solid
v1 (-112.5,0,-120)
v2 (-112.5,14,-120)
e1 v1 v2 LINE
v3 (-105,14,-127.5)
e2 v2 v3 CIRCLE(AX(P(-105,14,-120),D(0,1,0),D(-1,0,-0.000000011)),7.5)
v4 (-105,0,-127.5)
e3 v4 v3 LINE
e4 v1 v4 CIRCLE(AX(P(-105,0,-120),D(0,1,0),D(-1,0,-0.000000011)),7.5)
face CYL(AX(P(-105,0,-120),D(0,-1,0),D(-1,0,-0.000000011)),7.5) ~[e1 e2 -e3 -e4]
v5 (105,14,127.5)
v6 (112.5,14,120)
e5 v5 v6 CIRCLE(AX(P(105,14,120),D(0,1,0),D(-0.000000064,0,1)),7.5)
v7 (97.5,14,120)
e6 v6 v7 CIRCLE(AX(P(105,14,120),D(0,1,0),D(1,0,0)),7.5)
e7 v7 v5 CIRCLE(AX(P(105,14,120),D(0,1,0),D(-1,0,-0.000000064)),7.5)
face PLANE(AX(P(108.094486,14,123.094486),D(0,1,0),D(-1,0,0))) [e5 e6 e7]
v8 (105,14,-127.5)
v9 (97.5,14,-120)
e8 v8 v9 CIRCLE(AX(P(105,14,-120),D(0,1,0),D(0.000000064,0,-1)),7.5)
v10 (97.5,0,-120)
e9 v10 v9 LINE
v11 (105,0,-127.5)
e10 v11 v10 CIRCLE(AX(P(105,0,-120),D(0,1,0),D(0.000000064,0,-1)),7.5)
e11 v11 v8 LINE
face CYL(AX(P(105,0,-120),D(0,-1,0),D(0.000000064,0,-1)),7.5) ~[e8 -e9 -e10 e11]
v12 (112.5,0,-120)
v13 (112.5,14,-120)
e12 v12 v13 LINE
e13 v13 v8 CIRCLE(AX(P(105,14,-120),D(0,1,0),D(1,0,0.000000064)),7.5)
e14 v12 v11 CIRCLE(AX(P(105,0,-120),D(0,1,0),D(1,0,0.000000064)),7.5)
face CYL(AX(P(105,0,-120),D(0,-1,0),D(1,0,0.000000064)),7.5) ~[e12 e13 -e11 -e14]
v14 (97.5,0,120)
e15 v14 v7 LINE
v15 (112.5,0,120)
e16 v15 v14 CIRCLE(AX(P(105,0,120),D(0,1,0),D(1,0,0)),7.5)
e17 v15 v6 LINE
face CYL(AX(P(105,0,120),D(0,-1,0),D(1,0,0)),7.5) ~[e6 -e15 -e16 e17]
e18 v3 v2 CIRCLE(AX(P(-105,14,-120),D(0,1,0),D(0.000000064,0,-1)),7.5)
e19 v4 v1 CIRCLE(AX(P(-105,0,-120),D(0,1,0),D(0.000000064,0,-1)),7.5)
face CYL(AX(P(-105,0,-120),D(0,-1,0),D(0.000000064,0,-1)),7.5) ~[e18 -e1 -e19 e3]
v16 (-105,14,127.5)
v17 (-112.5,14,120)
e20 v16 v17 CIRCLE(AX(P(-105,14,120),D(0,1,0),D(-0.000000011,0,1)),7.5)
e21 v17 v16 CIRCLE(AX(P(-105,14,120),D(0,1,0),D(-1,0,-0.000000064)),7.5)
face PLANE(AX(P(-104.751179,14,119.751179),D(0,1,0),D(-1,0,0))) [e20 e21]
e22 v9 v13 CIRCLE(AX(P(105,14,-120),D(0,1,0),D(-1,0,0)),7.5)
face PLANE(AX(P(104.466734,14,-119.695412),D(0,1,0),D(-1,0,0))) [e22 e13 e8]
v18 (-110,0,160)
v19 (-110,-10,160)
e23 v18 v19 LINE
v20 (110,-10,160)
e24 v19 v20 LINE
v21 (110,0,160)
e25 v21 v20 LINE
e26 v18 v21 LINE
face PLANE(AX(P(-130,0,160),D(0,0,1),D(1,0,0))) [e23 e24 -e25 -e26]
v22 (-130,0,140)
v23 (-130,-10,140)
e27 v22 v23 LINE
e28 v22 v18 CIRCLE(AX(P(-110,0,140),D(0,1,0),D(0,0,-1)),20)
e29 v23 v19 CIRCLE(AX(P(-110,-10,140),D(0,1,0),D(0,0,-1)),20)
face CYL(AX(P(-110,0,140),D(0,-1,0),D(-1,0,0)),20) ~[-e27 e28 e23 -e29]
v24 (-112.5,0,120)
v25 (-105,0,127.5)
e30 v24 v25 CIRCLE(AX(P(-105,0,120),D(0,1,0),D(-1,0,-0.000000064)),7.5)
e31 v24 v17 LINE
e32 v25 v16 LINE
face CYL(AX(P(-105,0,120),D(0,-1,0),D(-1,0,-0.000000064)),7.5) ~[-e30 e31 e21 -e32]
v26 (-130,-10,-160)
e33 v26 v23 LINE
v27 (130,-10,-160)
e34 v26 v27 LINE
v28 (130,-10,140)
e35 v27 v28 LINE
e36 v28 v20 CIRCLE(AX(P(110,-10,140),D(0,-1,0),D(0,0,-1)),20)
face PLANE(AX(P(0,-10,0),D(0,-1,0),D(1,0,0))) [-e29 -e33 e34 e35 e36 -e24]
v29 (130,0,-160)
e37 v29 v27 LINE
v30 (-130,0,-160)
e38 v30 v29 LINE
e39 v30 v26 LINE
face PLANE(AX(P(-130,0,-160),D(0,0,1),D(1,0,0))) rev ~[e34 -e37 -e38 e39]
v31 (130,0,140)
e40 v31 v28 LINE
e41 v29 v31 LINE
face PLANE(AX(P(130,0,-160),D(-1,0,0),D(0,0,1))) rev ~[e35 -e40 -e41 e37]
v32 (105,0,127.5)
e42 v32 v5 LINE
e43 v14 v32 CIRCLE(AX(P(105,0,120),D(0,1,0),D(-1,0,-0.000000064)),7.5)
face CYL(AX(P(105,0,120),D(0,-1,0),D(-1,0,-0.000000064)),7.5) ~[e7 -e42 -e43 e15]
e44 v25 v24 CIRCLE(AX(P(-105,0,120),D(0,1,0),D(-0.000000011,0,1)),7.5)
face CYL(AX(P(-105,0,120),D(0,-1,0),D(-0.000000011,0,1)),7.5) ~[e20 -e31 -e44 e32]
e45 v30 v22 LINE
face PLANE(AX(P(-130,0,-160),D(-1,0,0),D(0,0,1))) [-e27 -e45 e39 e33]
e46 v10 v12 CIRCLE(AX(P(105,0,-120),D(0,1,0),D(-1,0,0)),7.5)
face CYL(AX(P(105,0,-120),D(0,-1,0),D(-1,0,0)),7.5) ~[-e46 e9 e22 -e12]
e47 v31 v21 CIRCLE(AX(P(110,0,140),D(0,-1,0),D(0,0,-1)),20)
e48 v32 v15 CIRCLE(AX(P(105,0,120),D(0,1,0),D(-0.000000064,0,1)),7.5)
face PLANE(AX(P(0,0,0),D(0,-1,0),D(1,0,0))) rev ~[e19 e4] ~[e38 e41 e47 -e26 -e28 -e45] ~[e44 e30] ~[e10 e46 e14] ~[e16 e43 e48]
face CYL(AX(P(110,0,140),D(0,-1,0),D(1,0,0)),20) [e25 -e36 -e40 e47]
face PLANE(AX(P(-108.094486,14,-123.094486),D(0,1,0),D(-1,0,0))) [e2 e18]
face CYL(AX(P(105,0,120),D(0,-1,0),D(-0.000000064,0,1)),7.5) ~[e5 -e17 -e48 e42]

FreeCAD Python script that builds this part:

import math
import FreeCAD as App
import Part
import Sketcher


def edges_at(feature, points):
    """Names of the edges that pass closest to the given points."""
    edges = feature.Shape.Edges
    near = lambda p: min(range(len(edges)), key=lambda i: edges[i].distToShape(Part.Vertex(*p))[0])
    return sorted({f"Edge{near(p) + 1}" for p in points})


def add_polygon(sketch, points):
    """Adds a closed chain of lines whose ends are joined by coincident constraints."""
    first, n = sketch.GeometryCount, len(points)
    for a, b in zip(points, points[1:] + points[:1]):
        sketch.addGeometry(Part.LineSegment(App.Vector(*a, 0), App.Vector(*b, 0)), False)
    for i in range(n):
        sketch.addConstraint(Sketcher.Constraint("Coincident", first + i, 2, first + (i + 1) % n, 1))

doc = App.newDocument("Part")
body = doc.addObject("PartDesign::Body", "Body")

# Sketch on XZ plane
sketch1 = body.newObject("Sketcher::SketchObject", "Sketch")
sketch1.AttachmentSupport = (doc.getObject("XZ_Plane"), [""])
sketch1.MapMode = "FlatFace"
add_polygon(sketch1, [(-130, 160), (-130, -160), (130, -160), (130, 160)])  # lines 0-3
sketch1.addConstraint([
    Sketcher.Constraint("Vertical", 0),
    Sketcher.Constraint("Horizontal", 1),
    Sketcher.Constraint("Vertical", 2),
    Sketcher.Constraint("Horizontal", 3),
    Sketcher.Constraint("Symmetric", 0, 2, 2, 2, -1, 1),
    Sketcher.Constraint("DistanceX", 1, 1, 1, 2, 260.0),
    Sketcher.Constraint("DistanceY", 0, 2, 0, 1, 320.0),
])
pad1 = body.newObject("PartDesign::Pad", "Pad")
pad1.Profile = sketch1
pad1.Length = 10
doc.recompute()

fillet = body.newObject("PartDesign::Fillet", "Fillet")
fillet.Base = (pad1, edges_at(pad1, [(-130, -5, 160), (130, -5, 160)]))
fillet.Radius = 20

# Sketch on XZ plane
sketch2 = body.newObject("Sketcher::SketchObject", "Sketch001")
sketch2.AttachmentSupport = (doc.getObject("XZ_Plane"), [""])
sketch2.MapMode = "FlatFace"
sketch2.addGeometry([
    Part.ArcOfCircle(Part.Circle(App.Vector(105, -120, 0), App.Vector(0, 0, 1), 8), math.radians(0), math.radians(180)),  # 0
    Part.ArcOfCircle(Part.Circle(App.Vector(105, -120, 0), App.Vector(0, 0, 1), 7), math.radians(-90), math.radians(0)),  # 1
    Part.ArcOfCircle(Part.Circle(App.Vector(105, -120, 0), App.Vector(0, 0, 1), 7), math.radians(180), math.radians(270)),  # 2
    Part.ArcOfCircle(Part.Circle(App.Vector(-105, -120, 0), App.Vector(0, 0, 1), 7), math.radians(180), math.radians(270)),  # 3
    Part.ArcOfCircle(Part.Circle(App.Vector(-105, -120, 0), App.Vector(0, 0, 1), 8), math.radians(-90), math.radians(180)),  # 4
    Part.ArcOfCircle(Part.Circle(App.Vector(-105, 120, 0), App.Vector(0, 0, 1), 8), math.radians(180), math.radians(450)),  # 5
    Part.ArcOfCircle(Part.Circle(App.Vector(-105, 120, 0), App.Vector(0, 0, 1), 7), math.radians(90), math.radians(180)),  # 6
    Part.ArcOfCircle(Part.Circle(App.Vector(105, 120, 0), App.Vector(0, 0, 1), 7), math.radians(0), math.radians(90)),  # 7
    Part.ArcOfCircle(Part.Circle(App.Vector(105, 120, 0), App.Vector(0, 0, 1), 8), math.radians(180), math.radians(360)),  # 8
    Part.ArcOfCircle(Part.Circle(App.Vector(105, 120, 0), App.Vector(0, 0, 1), 7), math.radians(90), math.radians(180)),  # 9
], False)
sketch2.addConstraint([
    Sketcher.Constraint("Tangent", 0, 1, 1, 2),
    Sketcher.Constraint("Tangent", 1, 1, 2, 2),
    Sketcher.Constraint("Tangent", 2, 1, 0, 2),
    Sketcher.Constraint("Tangent", 3, 1, 4, 2),
    Sketcher.Constraint("Coincident", 4, 1, 3, 2),
    Sketcher.Constraint("Tangent", 5, 1, 6, 2),
    Sketcher.Constraint("Coincident", 6, 1, 5, 2),
    Sketcher.Constraint("Tangent", 7, 1, 8, 2),
    Sketcher.Constraint("Tangent", 8, 1, 9, 2),
    Sketcher.Constraint("Tangent", 9, 1, 7, 2),
    Sketcher.Constraint("Equal", 2, 3),
    Sketcher.Constraint("Equal", 4, 5),
    Sketcher.Constraint("Equal", 6, 7),
    Sketcher.Constraint("Symmetric", 0, 3, 5, 3, -1, 1),
    Sketcher.Constraint("Symmetric", 3, 3, 7, 3, -1, 1),
    Sketcher.Constraint("Symmetric", 0, 3, 3, 3, -2),
    Sketcher.Constraint("Horizontal", 4, 3, 0, 1),
    Sketcher.Constraint("Horizontal", 0, 1, 2, 1),
    Sketcher.Constraint("Horizontal", 2, 1, 3, 1),
    Sketcher.Constraint("Horizontal", 9, 3, 5, 1),
    Sketcher.Constraint("Horizontal", 5, 1, 7, 1),
    Sketcher.Constraint("Horizontal", 7, 1, 8, 1),
    Sketcher.Constraint("Vertical", 9, 3, 1, 1),
    Sketcher.Constraint("Vertical", 6, 3, 4, 1),
    Sketcher.Constraint("Vertical", 4, 1, 6, 1),
    Sketcher.Constraint("Vertical", 1, 1, 9, 1),
    Sketcher.Constraint("Radius", 0, 7.5),
    Sketcher.Constraint("DistanceX", -1, 1, 0, 3, 105.0),
    Sketcher.Constraint("DistanceY", 0, 3, -1, 1, 120.0),
])
pad2 = body.newObject("PartDesign::Pad", "Pad001")
pad2.Profile = sketch2
pad2.Length = 14
pad2.Reversed = True

doc.recompute()
